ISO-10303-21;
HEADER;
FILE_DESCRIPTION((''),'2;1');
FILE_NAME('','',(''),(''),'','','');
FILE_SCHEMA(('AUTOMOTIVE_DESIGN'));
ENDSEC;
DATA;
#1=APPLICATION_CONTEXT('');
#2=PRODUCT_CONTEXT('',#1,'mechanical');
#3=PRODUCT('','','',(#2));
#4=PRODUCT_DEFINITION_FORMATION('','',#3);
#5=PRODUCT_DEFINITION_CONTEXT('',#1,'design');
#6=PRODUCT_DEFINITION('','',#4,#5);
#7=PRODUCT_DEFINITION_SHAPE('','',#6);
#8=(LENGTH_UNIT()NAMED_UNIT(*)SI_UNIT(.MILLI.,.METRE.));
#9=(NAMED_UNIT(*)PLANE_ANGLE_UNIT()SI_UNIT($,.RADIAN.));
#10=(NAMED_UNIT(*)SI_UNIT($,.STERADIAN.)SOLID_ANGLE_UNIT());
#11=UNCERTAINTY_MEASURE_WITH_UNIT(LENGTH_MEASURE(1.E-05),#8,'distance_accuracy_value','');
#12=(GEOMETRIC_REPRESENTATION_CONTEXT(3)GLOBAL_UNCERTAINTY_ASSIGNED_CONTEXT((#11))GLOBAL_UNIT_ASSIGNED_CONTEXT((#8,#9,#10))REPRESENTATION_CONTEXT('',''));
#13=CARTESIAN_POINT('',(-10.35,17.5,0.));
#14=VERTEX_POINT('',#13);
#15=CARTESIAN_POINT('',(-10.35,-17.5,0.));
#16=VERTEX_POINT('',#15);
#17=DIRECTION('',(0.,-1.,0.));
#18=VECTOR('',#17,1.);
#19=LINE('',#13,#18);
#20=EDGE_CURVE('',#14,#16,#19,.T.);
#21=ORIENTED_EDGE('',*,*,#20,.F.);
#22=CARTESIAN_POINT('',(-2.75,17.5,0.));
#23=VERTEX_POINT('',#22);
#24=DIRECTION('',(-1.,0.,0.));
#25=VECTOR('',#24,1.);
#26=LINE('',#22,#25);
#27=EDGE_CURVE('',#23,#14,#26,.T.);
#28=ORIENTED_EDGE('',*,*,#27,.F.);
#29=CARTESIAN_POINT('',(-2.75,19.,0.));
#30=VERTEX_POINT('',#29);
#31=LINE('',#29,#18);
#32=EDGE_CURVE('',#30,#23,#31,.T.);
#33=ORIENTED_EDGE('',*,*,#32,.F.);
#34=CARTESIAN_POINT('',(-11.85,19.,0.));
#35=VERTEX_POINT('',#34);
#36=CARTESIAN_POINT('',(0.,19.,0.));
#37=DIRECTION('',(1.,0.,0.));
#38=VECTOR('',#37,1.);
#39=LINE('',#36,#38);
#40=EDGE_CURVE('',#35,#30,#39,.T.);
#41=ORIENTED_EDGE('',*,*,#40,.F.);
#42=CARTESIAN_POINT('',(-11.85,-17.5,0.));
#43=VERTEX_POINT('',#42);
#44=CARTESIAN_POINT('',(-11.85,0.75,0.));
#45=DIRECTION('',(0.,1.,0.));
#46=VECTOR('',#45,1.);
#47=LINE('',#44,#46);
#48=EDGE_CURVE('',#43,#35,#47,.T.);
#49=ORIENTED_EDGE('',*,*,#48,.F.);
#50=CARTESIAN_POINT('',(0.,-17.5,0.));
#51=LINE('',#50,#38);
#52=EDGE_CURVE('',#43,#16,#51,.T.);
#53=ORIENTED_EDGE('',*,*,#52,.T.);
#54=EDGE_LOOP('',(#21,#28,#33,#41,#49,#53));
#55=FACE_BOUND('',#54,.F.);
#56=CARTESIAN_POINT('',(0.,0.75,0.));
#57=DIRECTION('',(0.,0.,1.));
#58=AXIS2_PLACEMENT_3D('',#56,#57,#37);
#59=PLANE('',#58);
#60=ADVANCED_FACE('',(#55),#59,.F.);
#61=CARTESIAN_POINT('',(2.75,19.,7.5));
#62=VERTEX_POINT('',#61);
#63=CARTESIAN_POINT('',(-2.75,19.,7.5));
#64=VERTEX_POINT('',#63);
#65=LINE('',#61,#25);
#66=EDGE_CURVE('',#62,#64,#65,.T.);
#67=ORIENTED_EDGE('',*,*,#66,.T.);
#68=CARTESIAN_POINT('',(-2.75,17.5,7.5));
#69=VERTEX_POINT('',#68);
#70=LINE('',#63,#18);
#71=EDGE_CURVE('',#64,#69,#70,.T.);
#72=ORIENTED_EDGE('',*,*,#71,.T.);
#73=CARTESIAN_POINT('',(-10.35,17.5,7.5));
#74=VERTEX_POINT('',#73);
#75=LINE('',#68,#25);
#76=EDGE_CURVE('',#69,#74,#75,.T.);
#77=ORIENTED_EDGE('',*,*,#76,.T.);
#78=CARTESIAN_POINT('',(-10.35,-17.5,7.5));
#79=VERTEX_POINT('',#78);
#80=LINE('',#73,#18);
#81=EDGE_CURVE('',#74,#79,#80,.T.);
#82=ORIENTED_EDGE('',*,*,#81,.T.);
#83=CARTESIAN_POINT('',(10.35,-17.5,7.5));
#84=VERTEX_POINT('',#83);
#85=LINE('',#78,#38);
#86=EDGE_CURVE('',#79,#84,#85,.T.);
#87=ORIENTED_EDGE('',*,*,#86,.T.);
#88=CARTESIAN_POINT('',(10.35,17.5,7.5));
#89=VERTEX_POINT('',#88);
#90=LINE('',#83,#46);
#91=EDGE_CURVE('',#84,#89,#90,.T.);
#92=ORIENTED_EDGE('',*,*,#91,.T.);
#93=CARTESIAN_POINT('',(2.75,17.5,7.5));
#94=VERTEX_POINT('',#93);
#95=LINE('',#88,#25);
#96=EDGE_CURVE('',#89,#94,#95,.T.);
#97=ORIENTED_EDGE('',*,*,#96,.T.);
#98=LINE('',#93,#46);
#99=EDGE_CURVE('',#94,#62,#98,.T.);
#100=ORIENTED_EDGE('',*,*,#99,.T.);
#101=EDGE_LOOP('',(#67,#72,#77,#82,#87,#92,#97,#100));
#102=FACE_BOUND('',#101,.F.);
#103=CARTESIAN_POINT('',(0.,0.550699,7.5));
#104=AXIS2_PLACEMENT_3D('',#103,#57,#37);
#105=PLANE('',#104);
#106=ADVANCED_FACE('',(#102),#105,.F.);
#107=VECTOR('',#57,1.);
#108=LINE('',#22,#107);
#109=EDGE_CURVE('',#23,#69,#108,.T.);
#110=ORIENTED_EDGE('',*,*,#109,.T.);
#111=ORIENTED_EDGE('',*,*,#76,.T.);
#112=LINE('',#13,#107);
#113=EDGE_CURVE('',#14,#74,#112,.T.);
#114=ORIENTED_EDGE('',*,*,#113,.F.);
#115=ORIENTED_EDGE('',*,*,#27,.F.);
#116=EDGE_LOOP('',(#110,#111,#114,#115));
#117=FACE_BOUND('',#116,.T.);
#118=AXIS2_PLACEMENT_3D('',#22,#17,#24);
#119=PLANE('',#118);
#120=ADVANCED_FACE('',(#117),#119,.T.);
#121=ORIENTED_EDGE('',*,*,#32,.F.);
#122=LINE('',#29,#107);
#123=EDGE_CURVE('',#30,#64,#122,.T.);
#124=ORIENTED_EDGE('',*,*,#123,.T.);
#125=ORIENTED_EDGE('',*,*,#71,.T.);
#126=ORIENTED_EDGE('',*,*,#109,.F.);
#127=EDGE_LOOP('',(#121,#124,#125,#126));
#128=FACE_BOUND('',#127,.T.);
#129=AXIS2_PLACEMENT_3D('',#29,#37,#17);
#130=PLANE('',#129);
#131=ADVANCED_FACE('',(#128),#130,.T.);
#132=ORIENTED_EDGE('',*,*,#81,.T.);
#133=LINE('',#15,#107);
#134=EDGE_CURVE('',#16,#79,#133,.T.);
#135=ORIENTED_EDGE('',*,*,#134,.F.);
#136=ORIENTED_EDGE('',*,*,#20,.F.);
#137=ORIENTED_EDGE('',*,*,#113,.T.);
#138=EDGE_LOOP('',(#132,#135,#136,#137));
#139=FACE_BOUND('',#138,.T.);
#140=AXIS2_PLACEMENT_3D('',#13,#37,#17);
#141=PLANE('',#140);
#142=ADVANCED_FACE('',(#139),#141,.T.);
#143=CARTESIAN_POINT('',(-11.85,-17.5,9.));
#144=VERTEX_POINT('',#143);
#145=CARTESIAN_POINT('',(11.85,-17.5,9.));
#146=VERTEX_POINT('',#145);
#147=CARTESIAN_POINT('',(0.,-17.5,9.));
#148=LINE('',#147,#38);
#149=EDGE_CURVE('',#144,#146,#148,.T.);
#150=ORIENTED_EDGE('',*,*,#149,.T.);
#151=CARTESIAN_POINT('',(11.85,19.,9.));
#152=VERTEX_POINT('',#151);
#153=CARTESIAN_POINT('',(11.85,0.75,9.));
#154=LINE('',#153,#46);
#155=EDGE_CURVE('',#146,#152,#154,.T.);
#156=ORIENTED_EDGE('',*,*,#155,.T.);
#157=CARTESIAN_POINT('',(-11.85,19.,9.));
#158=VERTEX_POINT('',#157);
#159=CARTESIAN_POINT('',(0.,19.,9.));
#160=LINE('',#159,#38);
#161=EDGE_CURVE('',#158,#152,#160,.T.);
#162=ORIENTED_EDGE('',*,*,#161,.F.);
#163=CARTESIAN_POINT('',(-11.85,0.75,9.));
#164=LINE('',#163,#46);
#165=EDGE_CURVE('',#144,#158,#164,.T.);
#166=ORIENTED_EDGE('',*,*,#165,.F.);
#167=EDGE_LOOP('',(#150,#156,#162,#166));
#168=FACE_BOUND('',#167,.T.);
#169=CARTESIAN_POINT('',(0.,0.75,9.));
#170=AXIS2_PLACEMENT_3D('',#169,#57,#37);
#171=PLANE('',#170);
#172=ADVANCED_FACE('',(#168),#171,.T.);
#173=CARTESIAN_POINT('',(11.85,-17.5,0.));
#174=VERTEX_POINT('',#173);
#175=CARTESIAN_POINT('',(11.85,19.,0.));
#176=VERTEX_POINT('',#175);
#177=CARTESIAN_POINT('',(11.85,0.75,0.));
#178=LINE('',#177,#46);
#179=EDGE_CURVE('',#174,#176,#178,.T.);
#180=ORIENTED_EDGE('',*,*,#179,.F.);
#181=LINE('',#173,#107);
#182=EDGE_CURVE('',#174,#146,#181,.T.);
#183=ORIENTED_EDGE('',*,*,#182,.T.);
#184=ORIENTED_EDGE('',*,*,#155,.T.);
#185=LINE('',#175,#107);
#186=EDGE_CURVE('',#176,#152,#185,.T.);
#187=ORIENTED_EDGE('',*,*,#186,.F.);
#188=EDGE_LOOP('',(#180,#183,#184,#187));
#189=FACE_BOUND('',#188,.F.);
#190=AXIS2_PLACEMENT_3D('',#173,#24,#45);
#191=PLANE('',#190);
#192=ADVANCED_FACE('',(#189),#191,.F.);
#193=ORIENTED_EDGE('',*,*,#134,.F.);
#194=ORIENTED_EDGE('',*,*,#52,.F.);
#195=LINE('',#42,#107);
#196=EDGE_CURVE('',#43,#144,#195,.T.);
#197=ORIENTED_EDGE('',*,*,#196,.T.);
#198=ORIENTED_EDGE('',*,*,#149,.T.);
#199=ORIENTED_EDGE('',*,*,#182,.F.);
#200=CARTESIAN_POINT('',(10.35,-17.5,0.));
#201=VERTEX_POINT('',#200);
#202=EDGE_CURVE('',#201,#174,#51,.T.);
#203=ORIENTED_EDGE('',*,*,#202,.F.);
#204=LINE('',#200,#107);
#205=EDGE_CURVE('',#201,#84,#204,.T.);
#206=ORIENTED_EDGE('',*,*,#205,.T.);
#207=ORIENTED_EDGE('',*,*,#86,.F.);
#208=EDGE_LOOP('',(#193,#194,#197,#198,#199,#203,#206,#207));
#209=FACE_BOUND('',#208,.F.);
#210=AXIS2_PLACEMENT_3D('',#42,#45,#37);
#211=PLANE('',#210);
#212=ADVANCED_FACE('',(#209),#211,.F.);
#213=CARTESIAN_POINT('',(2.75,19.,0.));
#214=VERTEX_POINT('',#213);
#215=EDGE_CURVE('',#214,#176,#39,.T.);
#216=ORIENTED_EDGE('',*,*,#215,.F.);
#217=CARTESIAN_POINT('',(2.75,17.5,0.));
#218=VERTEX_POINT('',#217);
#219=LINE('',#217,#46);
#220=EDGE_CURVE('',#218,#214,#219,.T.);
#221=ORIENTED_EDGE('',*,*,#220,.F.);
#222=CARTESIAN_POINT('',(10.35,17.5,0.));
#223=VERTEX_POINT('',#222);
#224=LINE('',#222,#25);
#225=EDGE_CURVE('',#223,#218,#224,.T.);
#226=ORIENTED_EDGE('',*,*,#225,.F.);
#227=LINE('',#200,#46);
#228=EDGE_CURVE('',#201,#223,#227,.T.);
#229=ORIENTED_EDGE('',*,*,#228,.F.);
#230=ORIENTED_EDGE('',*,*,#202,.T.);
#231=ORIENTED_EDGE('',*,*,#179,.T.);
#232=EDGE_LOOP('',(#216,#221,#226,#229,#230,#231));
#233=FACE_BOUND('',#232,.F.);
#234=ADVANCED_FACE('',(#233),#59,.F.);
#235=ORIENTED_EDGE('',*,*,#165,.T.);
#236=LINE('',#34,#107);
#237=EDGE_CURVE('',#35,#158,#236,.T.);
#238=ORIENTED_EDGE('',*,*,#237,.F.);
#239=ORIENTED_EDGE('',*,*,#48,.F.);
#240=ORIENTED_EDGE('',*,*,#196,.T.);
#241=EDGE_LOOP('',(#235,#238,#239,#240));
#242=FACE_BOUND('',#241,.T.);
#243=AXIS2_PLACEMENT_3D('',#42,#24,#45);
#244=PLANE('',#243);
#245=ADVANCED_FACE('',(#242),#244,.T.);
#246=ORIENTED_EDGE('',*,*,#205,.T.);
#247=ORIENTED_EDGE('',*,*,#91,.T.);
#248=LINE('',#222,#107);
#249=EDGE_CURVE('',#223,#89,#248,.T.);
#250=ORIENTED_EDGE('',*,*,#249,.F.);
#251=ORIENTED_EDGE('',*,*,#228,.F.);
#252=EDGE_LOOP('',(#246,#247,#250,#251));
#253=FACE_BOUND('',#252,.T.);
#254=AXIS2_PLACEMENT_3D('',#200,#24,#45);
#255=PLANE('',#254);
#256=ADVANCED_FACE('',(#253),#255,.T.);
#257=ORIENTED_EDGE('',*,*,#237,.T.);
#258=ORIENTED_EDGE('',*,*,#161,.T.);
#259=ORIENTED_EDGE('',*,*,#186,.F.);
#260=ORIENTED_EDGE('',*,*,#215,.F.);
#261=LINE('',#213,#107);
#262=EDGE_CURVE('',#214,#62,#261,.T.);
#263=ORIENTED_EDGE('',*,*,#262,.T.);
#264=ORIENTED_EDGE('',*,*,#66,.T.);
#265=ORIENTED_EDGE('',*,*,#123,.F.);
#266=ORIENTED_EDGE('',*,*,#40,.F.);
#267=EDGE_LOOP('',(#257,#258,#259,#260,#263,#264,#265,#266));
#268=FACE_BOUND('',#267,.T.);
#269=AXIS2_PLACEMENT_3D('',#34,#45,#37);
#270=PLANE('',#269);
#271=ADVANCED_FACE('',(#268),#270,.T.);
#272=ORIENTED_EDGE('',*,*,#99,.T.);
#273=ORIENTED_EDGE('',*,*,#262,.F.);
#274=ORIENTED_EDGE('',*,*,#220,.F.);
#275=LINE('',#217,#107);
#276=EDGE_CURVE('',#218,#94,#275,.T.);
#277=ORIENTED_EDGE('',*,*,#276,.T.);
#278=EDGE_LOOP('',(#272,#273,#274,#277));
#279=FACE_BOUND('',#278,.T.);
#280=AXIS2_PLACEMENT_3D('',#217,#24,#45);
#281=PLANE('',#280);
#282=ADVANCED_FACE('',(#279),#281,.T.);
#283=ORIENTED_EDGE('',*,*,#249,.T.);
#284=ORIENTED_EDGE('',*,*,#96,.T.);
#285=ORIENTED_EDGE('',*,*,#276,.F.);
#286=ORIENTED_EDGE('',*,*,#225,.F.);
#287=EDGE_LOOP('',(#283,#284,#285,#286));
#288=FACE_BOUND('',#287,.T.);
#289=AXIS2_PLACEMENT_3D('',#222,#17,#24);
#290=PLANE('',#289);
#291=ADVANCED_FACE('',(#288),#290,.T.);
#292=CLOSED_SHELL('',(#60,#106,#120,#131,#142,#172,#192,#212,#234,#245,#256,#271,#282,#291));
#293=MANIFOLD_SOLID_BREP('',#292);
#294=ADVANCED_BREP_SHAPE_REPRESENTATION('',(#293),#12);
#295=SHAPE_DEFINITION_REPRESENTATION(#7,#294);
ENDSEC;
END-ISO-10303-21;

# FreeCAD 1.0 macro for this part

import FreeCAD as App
import Part
import Sketcher


def add_polygon(sketch, points):
    """Adds a closed chain of lines whose ends are joined by coincident constraints."""
    first, n = sketch.GeometryCount, len(points)
    for a, b in zip(points, points[1:] + points[:1]):
        sketch.addGeometry(Part.LineSegment(App.Vector(*a, 0), App.Vector(*b, 0)), False)
    for i in range(n):
        sketch.addConstraint(Sketcher.Constraint("Coincident", first + i, 2, first + (i + 1) % n, 1))

doc = App.newDocument("Part")
body = doc.addObject("PartDesign::Body", "Body")

sketch1 = body.newObject("Sketcher::SketchObject", "Sketch")
sketch1.AttachmentSupport = (doc.getObject("XY_Plane"), [""])
sketch1.MapMode = "FlatFace"
add_polygon(sketch1, [(-12, 19), (-12, -18), (12, -18), (12, 19)])
sketch1.addConstraint([
    Sketcher.Constraint("Vertical", 0),
    Sketcher.Constraint("Horizontal", 1),
    Sketcher.Constraint("Vertical", 2),
    Sketcher.Constraint("Horizontal", 3),
    Sketcher.Constraint("DistanceX", 1, 1, 1, 2, 23.7),
    Sketcher.Constraint("DistanceY", 0, 2, 0, 1, 36.5),
    Sketcher.Constraint("DistanceY", -1, 1, 2, 2, 19.0),
    Sketcher.Constraint("DistanceX", 0, 2, -1, 1, 11.85),
])
pad1 = body.newObject("PartDesign::Pad", "Pad")
pad1.Profile = sketch1
pad1.Length = 9

sketch2 = body.newObject("Sketcher::SketchObject", "Sketch001")
sketch2.AttachmentSupport = (doc.getObject("XY_Plane"), [""])
sketch2.MapMode = "FlatFace"
add_polygon(sketch2, [(-10.3, -17.5), (10.3, -17.5), (10.3, 17.5), (2.8, 17.5), (2.8, 19), (-2.8, 19), (-2.8, 17.5), (-10.3, 17.5)])
sketch2.addConstraint([
    Sketcher.Constraint("Horizontal", 0),
    Sketcher.Constraint("Vertical", 1),
    Sketcher.Constraint("Horizontal", 2),
    Sketcher.Constraint("Vertical", 3),
    Sketcher.Constraint("Horizontal", 4),
    Sketcher.Constraint("Vertical", 5),
    Sketcher.Constraint("Horizontal", 6),
    Sketcher.Constraint("Vertical", 7),
    Sketcher.Constraint("Symmetric", 0, 2, 6, 2, -1, 1),
    Sketcher.Constraint("Symmetric", 2, 2, 5, 2, -2),
    Sketcher.Constraint("DistanceY", 1, 1, 1, 2, 35.0),
    Sketcher.Constraint("DistanceX", 0, 1, 0, 2, 20.7),
    Sketcher.Constraint("DistanceX", 2, 2, 2, 1, 7.6),
    Sketcher.Constraint("DistanceY", 3, 1, 3, 2, 1.5),
])
pocket1 = body.newObject("PartDesign::Pocket", "Pocket")
pocket1.Profile = sketch2
pocket1.Length = 7.5
pocket1.Reversed = True

doc.recompute()
